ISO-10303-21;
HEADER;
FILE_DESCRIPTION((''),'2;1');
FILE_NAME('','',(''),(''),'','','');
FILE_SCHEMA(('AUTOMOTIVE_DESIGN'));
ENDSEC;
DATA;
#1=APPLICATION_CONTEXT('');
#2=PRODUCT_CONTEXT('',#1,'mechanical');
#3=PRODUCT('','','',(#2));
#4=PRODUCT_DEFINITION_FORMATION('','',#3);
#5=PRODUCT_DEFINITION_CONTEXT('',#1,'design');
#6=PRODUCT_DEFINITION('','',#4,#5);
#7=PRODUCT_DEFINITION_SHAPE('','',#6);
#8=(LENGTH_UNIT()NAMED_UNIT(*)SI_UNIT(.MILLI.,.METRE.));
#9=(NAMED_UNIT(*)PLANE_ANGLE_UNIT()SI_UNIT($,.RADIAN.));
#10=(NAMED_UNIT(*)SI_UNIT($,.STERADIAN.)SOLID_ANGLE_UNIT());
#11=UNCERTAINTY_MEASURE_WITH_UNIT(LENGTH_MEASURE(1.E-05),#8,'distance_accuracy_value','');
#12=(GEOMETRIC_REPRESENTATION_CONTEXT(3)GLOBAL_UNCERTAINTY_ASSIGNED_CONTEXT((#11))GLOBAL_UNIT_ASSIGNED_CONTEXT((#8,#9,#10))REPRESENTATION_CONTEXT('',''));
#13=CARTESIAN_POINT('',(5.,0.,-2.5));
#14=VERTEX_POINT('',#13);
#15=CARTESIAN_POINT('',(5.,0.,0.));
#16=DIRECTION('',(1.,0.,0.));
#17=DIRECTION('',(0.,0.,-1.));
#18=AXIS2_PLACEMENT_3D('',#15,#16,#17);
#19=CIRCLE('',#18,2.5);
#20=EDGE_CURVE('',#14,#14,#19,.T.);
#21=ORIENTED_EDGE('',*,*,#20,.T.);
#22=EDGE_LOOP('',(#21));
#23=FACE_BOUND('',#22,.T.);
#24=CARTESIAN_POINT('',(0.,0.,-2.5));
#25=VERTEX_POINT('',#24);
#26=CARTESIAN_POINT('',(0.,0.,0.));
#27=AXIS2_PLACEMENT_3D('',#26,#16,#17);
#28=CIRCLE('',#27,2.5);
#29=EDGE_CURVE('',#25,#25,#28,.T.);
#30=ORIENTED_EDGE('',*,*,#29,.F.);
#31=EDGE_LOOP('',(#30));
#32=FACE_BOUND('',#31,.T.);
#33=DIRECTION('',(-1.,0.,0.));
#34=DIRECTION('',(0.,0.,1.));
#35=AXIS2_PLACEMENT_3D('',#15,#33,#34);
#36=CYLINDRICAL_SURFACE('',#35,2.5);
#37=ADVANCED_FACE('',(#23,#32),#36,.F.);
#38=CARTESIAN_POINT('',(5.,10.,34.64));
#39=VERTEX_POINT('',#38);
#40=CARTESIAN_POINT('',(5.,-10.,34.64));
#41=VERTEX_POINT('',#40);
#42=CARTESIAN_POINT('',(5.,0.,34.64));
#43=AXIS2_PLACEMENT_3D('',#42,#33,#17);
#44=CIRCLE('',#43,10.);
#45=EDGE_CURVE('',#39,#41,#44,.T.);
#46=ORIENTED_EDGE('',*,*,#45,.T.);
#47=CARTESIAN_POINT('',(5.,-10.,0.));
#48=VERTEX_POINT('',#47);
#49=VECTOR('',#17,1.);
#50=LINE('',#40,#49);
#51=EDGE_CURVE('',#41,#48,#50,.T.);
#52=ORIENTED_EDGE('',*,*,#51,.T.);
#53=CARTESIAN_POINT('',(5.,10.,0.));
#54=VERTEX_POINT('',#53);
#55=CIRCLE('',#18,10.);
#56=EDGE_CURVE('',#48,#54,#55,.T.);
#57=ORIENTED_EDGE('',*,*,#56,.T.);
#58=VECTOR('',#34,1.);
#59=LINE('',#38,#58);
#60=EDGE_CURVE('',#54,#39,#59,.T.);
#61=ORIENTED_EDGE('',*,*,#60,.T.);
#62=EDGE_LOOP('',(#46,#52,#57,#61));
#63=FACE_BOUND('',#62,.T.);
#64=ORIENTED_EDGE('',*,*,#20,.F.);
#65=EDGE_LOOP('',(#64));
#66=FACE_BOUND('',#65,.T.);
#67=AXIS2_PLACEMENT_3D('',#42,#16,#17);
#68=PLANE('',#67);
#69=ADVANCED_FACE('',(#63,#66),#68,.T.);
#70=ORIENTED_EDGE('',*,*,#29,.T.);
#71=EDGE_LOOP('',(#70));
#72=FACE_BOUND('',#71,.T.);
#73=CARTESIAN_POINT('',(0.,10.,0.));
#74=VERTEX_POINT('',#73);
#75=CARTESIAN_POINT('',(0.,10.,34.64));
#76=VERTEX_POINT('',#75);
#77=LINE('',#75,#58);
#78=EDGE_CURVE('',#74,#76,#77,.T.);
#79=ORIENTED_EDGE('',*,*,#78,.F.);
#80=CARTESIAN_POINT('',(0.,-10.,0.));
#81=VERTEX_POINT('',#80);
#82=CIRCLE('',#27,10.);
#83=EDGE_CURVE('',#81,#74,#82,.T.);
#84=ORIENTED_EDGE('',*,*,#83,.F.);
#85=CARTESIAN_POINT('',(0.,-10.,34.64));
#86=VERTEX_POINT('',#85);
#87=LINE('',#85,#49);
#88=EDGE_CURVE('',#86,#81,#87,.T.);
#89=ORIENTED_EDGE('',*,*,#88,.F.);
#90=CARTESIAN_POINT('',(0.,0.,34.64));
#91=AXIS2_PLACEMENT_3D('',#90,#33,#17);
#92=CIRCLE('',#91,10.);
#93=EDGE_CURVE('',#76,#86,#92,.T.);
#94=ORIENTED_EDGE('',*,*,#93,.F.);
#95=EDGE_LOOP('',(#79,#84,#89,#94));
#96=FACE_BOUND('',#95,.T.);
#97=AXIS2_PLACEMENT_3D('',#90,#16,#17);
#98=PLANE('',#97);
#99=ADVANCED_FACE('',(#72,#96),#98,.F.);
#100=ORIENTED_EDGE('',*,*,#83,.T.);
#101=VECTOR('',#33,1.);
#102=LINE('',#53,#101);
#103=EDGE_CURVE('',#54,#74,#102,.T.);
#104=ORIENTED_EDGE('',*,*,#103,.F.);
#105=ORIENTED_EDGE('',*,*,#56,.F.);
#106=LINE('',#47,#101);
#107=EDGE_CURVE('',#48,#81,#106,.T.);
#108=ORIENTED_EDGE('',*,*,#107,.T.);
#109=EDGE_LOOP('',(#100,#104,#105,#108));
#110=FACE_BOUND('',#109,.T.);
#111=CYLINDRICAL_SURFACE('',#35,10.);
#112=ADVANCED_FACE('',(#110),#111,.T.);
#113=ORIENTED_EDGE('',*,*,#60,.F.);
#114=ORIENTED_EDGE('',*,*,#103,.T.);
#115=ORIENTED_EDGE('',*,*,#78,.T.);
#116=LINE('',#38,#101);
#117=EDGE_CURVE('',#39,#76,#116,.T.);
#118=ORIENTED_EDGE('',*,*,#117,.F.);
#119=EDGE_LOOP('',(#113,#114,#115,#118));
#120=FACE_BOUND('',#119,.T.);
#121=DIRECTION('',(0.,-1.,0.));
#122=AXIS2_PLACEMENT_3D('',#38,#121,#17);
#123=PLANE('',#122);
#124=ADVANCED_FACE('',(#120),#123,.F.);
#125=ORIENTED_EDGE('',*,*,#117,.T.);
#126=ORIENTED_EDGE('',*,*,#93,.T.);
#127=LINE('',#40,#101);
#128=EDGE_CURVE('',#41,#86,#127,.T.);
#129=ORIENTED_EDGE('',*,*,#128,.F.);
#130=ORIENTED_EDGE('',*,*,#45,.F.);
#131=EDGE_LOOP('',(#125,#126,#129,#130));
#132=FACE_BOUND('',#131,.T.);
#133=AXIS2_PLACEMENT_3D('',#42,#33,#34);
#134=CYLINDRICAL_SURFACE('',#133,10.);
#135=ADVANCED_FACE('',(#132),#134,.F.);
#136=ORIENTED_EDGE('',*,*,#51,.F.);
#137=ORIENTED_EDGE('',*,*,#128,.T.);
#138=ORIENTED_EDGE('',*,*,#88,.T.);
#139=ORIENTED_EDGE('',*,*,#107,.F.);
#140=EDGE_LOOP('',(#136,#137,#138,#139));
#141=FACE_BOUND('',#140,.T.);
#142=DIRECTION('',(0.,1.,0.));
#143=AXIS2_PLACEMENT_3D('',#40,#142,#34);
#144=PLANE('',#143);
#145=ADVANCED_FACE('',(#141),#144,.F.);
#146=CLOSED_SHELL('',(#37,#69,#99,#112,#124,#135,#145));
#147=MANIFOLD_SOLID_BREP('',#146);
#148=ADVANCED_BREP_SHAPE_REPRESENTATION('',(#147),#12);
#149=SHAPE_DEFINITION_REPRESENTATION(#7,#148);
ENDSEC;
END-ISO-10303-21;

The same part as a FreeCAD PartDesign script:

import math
import FreeCAD as App
import Part
import Sketcher
from FreeCAD import Vector
Q = App.Units.Quantity

doc = App.newDocument("Part")
body = doc.addObject("PartDesign::Body", "Body")

# Sketch on YZ plane
sketch1 = doc.addObject("Sketcher::SketchObject", "Sketch")
body.addObject(sketch1)
sketch1.AttachmentSupport = (doc.YZ_Plane, [""])
sketch1.MapMode = "FlatFace"
sketch1.addGeometry([
    Part.LineSegment(Vector(-10, 34.6, 0), Vector(-10, 0, 0)),  # 0
    Part.ArcOfCircle(Part.Circle(Vector(0, 0, 0), Vector(0, 0, 1), 10), math.radians(180), math.radians(360)),  # 1
    Part.LineSegment(Vector(10, 0, 0), Vector(10, 34.6, 0)),  # 2
    Part.ArcOfCircle(Part.Circle(Vector(0, 34.6, 0), Vector(0, 0, 1), 10), math.radians(180), math.radians(360)),  # 3
    Part.Circle(Vector(0, 0, 0), Vector(0, 0, 1), 2.5),  # 4
], False)
sketch1.addConstraint([
    Sketcher.Constraint("Tangent", 0, 2, 1, 1),
    Sketcher.Constraint("Tangent", 1, 2, 2, 1),
    Sketcher.Constraint("Tangent", 2, 2, 3, 2),
    Sketcher.Constraint("Tangent", 3, 1, 0, 1),
    Sketcher.Constraint("Vertical", 0),
    Sketcher.Constraint("Vertical", 2),
    Sketcher.Constraint("Coincident", 1, 3, -1, 1),
    Sketcher.Constraint("Coincident", 4, 3, -1, 1),
    Sketcher.Constraint("Diameter", 4, Q("5 mm")),
    Sketcher.Constraint("Radius", 1, Q("10 mm")),
    Sketcher.Constraint("DistanceY", 0, 2, 0, 1, Q("34.64 mm")),
])
pad1 = doc.addObject("PartDesign::Pad", "Pad")
body.addObject(pad1)
pad1.Profile = sketch1
pad1.Length = 5

doc.recompute()
